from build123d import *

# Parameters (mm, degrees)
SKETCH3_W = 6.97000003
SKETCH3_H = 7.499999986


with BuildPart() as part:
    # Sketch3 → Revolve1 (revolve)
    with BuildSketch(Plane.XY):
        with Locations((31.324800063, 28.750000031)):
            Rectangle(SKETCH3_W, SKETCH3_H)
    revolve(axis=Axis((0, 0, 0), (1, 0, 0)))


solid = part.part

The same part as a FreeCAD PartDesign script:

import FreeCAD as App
import Part
import Sketcher

doc = App.newDocument("Part")
body = doc.addObject("PartDesign::Body", "Body")

sketch1 = body.newObject("Sketcher::SketchObject", "Sketch")
sketch1.AttachmentSupport = (doc.getObject("XY_Plane"), [""])
sketch1.MapMode = "FlatFace"
sketch1.addGeometry([
    Part.LineSegment(App.Vector(28, 33, 0), App.Vector(28, 25, 0)),
    Part.LineSegment(App.Vector(28, 25, 0), App.Vector(35, 25, 0)),
    Part.LineSegment(App.Vector(35, 25, 0), App.Vector(35, 33, 0)),
    Part.LineSegment(App.Vector(35, 33, 0), App.Vector(28, 33, 0)),
], False)
sketch1.addConstraint([
    Sketcher.Constraint("Coincident", 0, 2, 1, 1),
    Sketcher.Constraint("Coincident", 1, 2, 2, 1),
    Sketcher.Constraint("Coincident", 2, 2, 3, 1),
    Sketcher.Constraint("Coincident", 3, 2, 0, 1),
    Sketcher.Constraint("Vertical", 0),
    Sketcher.Constraint("Horizontal", 1),
    Sketcher.Constraint("Vertical", 2),
    Sketcher.Constraint("Horizontal", 3),
    Sketcher.Constraint("DistanceY", 0, 2, 0, 1, 7.5),
    Sketcher.Constraint("DistanceY", -1, 1, 0, 2, 25.0),
    Sketcher.Constraint("DistanceX", 1, 1, 1, 2, 6.97),
    Sketcher.Constraint("DistanceX", -1, 1, 0, 2, 27.8398),
])
revolution = body.newObject("PartDesign::Revolution", "Revolution")
revolution.Profile = sketch1
revolution.ReferenceAxis = (sketch1, ["H_Axis"])
revolution.Angle = 360

doc.recompute()
